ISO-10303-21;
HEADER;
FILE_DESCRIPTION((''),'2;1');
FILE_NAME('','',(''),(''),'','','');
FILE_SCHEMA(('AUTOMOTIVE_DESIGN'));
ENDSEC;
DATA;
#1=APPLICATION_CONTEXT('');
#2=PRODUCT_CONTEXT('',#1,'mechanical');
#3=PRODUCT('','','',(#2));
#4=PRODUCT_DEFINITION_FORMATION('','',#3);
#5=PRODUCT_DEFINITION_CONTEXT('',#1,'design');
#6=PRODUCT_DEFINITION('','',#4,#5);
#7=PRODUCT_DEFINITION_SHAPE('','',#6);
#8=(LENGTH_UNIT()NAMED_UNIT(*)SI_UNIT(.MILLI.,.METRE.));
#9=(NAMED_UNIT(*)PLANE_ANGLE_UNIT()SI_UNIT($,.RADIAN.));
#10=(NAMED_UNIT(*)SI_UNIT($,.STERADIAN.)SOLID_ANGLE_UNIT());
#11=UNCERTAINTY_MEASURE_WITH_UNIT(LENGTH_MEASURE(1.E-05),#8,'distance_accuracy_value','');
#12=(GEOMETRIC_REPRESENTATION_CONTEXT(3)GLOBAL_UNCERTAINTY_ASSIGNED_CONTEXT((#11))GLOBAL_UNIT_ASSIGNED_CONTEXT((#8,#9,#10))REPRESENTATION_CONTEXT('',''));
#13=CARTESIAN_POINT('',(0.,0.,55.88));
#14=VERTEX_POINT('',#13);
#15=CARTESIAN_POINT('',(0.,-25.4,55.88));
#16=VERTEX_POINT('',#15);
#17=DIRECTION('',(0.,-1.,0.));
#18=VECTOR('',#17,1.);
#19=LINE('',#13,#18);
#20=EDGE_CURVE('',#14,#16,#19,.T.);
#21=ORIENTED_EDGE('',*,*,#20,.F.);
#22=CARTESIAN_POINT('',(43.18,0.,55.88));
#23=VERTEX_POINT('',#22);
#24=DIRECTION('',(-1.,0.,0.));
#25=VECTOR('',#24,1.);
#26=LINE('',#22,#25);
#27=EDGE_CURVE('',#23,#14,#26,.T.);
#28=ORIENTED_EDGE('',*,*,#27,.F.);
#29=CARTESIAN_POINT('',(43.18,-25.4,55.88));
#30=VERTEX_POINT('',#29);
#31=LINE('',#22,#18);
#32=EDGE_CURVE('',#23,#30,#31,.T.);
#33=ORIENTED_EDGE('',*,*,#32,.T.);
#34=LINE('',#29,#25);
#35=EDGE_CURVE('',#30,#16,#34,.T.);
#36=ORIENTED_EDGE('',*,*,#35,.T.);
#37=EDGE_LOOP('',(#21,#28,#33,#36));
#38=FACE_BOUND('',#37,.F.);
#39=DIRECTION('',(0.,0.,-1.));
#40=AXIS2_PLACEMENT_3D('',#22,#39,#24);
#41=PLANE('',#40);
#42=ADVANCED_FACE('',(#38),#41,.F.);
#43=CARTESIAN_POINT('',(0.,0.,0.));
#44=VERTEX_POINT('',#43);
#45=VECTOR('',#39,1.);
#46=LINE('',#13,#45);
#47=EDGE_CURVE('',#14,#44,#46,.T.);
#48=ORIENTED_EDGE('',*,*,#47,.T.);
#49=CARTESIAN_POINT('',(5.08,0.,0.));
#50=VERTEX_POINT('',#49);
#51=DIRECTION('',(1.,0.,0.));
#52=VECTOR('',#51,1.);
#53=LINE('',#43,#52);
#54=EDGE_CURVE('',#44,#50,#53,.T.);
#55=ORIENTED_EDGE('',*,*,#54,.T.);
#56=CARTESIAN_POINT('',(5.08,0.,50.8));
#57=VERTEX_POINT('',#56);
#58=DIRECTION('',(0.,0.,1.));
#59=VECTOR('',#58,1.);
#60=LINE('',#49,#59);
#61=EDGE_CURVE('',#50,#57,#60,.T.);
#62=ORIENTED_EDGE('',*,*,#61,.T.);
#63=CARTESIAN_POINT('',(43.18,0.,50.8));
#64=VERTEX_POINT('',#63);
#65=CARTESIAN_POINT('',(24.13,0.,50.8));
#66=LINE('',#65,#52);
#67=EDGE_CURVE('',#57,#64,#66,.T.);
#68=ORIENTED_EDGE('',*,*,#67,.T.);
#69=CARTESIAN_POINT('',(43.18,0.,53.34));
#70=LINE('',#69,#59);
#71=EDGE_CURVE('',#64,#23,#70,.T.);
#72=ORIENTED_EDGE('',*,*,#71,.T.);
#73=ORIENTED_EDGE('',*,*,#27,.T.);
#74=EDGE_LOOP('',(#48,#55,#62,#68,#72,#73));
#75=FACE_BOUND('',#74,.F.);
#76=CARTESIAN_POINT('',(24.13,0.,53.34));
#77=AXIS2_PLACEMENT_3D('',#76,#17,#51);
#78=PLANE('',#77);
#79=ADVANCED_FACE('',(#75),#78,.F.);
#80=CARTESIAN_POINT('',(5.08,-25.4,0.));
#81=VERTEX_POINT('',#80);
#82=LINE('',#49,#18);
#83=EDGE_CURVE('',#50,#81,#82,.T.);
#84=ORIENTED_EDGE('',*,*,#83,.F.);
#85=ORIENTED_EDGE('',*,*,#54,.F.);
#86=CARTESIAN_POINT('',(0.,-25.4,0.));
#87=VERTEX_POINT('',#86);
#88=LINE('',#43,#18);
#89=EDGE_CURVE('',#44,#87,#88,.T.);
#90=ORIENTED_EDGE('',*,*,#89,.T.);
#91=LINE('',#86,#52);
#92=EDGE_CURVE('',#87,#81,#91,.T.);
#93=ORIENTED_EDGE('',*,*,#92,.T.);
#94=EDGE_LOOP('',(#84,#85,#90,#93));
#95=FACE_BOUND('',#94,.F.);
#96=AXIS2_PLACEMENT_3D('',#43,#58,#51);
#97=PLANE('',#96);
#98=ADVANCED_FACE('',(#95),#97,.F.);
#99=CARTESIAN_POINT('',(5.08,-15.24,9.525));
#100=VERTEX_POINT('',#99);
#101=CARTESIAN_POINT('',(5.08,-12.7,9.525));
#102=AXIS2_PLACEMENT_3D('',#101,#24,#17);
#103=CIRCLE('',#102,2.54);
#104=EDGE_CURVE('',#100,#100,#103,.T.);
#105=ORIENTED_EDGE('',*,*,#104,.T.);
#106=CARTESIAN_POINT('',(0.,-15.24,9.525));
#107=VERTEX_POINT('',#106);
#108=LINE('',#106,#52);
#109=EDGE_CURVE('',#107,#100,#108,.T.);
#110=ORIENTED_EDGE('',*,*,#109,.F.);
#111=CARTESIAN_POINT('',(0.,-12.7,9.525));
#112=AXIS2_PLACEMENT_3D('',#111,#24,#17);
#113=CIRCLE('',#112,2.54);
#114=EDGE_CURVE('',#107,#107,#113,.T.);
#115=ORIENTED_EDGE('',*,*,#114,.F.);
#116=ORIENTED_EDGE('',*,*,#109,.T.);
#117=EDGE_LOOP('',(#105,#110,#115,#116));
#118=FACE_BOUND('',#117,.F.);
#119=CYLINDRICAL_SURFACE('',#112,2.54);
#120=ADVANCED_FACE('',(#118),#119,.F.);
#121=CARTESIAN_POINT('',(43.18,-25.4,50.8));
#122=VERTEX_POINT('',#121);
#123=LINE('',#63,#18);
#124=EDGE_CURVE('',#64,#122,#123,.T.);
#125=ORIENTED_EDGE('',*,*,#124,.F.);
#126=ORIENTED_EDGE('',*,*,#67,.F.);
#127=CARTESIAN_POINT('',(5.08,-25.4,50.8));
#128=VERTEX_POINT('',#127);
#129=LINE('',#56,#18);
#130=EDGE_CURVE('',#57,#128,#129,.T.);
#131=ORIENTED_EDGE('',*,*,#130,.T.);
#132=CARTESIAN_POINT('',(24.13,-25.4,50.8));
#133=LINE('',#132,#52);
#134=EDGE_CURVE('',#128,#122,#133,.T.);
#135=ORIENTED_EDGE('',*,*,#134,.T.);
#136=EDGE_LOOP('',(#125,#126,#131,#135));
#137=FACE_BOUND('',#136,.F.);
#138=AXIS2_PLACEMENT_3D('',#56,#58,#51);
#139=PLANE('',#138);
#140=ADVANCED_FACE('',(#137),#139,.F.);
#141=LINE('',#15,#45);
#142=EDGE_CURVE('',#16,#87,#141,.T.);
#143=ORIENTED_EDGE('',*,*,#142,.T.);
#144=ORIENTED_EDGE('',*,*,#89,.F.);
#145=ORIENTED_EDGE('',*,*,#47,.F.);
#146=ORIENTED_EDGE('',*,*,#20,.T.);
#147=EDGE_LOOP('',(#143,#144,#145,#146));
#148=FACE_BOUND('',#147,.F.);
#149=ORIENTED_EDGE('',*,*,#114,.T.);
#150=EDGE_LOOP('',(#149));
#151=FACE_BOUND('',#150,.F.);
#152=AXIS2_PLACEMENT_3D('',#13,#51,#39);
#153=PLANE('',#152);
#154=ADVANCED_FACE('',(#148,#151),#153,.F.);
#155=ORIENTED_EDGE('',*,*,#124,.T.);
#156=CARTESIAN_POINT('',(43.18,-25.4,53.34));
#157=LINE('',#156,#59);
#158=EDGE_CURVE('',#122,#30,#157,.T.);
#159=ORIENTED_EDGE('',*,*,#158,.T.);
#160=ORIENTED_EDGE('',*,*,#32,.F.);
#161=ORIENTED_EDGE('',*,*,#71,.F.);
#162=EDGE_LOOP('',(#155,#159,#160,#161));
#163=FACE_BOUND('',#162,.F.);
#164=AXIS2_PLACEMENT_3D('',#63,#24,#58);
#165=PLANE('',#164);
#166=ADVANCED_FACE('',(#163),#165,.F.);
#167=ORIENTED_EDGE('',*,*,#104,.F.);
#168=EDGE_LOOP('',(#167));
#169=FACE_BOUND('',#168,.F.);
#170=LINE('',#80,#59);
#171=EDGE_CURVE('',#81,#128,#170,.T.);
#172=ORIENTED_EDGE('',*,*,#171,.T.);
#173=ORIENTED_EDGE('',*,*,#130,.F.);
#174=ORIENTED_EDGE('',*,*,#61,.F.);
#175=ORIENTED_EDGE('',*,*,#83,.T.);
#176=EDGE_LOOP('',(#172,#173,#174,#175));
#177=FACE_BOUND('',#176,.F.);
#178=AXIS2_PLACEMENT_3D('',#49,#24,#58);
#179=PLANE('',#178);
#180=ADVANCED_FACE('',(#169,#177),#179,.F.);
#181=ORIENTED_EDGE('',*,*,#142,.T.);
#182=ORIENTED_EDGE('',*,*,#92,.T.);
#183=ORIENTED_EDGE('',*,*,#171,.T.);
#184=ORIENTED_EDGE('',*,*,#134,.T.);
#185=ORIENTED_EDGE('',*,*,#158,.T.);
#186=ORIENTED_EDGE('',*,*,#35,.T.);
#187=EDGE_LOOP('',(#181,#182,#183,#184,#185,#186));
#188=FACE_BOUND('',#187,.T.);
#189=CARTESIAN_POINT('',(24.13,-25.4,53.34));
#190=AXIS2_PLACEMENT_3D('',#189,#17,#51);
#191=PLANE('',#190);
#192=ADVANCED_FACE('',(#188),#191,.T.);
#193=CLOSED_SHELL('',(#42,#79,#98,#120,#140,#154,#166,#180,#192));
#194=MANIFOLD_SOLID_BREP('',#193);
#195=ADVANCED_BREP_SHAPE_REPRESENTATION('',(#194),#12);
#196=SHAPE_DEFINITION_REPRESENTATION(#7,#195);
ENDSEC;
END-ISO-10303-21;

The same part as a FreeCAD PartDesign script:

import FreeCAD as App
import Part
import Sketcher
from FreeCAD import Vector
Q = App.Units.Quantity


def add_polygon(sketch, points):
    """Adds a closed chain of lines whose ends are joined by coincident constraints."""
    first, n = sketch.GeometryCount, len(points)
    for a, b in zip(points, points[1:] + points[:1]):
        sketch.addGeometry(Part.LineSegment(App.Vector(*a, 0), App.Vector(*b, 0)), False)
    for i in range(n):
        sketch.addConstraint(Sketcher.Constraint("Coincident", first + i, 2, first + (i + 1) % n, 1))

doc = App.newDocument("Part")
params = doc.addObject("Spreadsheet::Sheet", "Params")
for row, (alias, value) in enumerate([
    ("sketch1_height", "2 in"),
    ("sketch1_width", "1.5 in"),
    ("sketch1_width2", "1.7 in"),
    ("pad1_length", "1 in"),
    ("sketch2_diameter", "0.2 in"),
    ("pocket1_length", "1 in"),
], start=1):
    params.set(f"A{row}", alias)
    params.set(f"B{row}", "=" + value)
    params.setAlias(f"B{row}", alias)

body = doc.addObject("PartDesign::Body", "Body")

sketch1 = body.newObject("Sketcher::SketchObject", "Sketch")
sketch1.AttachmentSupport = (doc.getObject("XZ_Plane"), [""])
sketch1.MapMode = "FlatFace"
add_polygon(sketch1, [(5, 51), (43, 51), (43, 56), (0, 56), (0, 0), (5, 0)])
sketch1.addConstraint([
    Sketcher.Constraint("Horizontal", 0),
    Sketcher.Constraint("Vertical", 1),
    Sketcher.Constraint("Horizontal", 2),
    Sketcher.Constraint("Vertical", 3),
    Sketcher.Constraint("Horizontal", 4),
    Sketcher.Constraint("Vertical", 5),
    Sketcher.Constraint("Coincident", 3, 2, -1, 1),
    Sketcher.Constraint("Equal", 4, 1),
    Sketcher.Constraint("DistanceY", 5, 1, 5, 2, Q("2 in")),
    Sketcher.Constraint("DistanceX", 0, 1, 0, 2, Q("1.5 in")),
    Sketcher.Constraint("DistanceX", 2, 2, 2, 1, Q("1.7 in")),
])
sketch1.setExpression("Constraints[14]", "Params.sketch1_height")
sketch1.setExpression("Constraints[15]", "Params.sketch1_width")
sketch1.setExpression("Constraints[16]", "Params.sketch1_width2")
pad1 = body.newObject("PartDesign::Pad", "Pad")
pad1.Profile = sketch1
pad1.setExpression("Length", "Params.pad1_length")

sketch2 = body.newObject("Sketcher::SketchObject", "Sketch001")
sketch2.AttachmentSupport = (doc.getObject("YZ_Plane"), [""])
sketch2.MapMode = "FlatFace"
sketch2.addGeometry(Part.Circle(Vector(-12.7, 9.5, 0), Vector(0, 0, 1), 2.5), False)
sketch2.addConstraint([
    Sketcher.Constraint("Diameter", 0, Q("0.2 in")),
    Sketcher.Constraint("DistanceX", 0, 3, -1, 1, Q("0.5 in")),
    Sketcher.Constraint("DistanceY", -1, 1, 0, 3, Q("0.375 in")),
])
sketch2.setExpression("Constraints[0]", "Params.sketch2_diameter")
pocket1 = body.newObject("PartDesign::Pocket", "Pocket")
pocket1.Profile = sketch2
pocket1.setExpression("Length", "Params.pocket1_length")
pocket1.Reversed = True

doc.recompute()
